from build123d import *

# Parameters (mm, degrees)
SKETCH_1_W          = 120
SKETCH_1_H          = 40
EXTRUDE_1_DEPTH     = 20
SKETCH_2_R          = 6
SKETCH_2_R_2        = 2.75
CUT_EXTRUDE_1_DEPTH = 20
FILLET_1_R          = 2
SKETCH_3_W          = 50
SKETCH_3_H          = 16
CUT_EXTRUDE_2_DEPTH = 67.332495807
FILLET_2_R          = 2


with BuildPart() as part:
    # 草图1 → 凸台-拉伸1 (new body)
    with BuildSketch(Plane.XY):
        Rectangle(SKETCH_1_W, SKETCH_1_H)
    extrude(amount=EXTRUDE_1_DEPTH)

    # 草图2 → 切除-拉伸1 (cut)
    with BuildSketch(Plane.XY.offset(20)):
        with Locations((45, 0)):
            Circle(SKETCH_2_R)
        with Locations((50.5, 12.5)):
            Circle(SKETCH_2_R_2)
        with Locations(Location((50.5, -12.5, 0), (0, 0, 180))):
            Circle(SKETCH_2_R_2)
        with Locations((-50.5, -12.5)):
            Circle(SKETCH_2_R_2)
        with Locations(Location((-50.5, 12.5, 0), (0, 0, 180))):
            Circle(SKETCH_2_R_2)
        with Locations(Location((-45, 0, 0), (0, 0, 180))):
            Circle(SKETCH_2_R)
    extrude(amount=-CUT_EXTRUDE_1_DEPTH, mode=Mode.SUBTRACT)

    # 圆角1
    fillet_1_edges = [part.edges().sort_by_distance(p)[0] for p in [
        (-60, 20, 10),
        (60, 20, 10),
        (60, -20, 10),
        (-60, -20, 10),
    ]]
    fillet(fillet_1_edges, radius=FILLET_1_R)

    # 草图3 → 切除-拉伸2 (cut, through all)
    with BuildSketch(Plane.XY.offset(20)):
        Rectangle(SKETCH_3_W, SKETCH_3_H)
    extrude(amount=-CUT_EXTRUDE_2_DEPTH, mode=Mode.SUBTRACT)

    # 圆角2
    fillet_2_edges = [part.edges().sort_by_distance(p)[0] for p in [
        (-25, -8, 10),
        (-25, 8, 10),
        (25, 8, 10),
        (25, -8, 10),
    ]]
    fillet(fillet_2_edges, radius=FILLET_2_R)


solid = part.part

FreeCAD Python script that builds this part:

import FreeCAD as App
import Part
import Sketcher

V = App.Vector
Q = App.Units.Quantity


def edges_at(feature, points):
    """Names of the edges that pass closest to the given points."""
    edges = feature.Shape.Edges
    near = lambda p: min(range(len(edges)), key=lambda i: edges[i].distToShape(Part.Vertex(*p))[0])
    return sorted({f"Edge{near(p) + 1}" for p in points})

doc = App.newDocument("Part")
body = doc.addObject("PartDesign::Body", "Body")

# Sketch on XY plane
sketch1 = body.newObject("Sketcher::SketchObject", "Sketch")
sketch1.AttachmentSupport = (doc.getObject("XY_Plane"), [""])
sketch1.MapMode = "FlatFace"
sketch1.addGeometry([
    Part.LineSegment(V(-60, 20, 0), V(-60, -20, 0)),
    Part.LineSegment(V(-60, -20, 0), V(60, -20, 0)),
    Part.LineSegment(V(60, -20, 0), V(60, 20, 0)),
    Part.LineSegment(V(60, 20, 0), V(-60, 20, 0)),
], False)
sketch1.addConstraint([
    Sketcher.Constraint("Coincident", 0, 2, 1, 1),
    Sketcher.Constraint("Coincident", 1, 2, 2, 1),
    Sketcher.Constraint("Coincident", 2, 2, 3, 1),
    Sketcher.Constraint("Coincident", 3, 2, 0, 1),
    Sketcher.Constraint("Vertical", 0),
    Sketcher.Constraint("Horizontal", 1),
    Sketcher.Constraint("Vertical", 2),
    Sketcher.Constraint("Horizontal", 3),
    Sketcher.Constraint("Symmetric", 0, 2, 2, 2, -1, 1),
    Sketcher.Constraint("DistanceX", 1, 1, 1, 2, Q("120 mm")),
    Sketcher.Constraint("DistanceY", 0, 2, 0, 1, Q("40 mm")),
])
pad1 = body.newObject("PartDesign::Pad", "Pad")
pad1.Profile = sketch1
pad1.Length = 20

# Sketch on XY plane
sketch2 = body.newObject("Sketcher::SketchObject", "Sketch001")
sketch2.AttachmentSupport = (doc.getObject("XY_Plane"), [""])
sketch2.MapMode = "FlatFace"
sketch2.AttachmentOffset = App.Placement(V(0, 0, 20), App.Rotation())
sketch2.addGeometry([
    Part.Circle(V(45, 0, 0), V(0, 0, 1), 6),  # 0
    Part.Circle(V(50.5, 12.5, 0), V(0, 0, 1), 2.75),  # 1
    Part.Circle(V(50.5, -12.5, 0), V(0, 0, 1), 2.75),  # 2
    Part.Circle(V(-50.5, -12.5, 0), V(0, 0, 1), 2.75),  # 3
    Part.Circle(V(-50.5, 12.5, 0), V(0, 0, 1), 2.75),  # 4
    Part.Circle(V(-45, 0, 0), V(0, 0, 1), 6),  # 5
], False)
sketch2.addConstraint([
    Sketcher.Constraint("Equal", 1, 2),
    Sketcher.Constraint("Equal", 2, 3),
    Sketcher.Constraint("Equal", 3, 4),
    Sketcher.Constraint("Equal", 0, 5),
    Sketcher.Constraint("Symmetric", 1, 3, 3, 3, -1, 1),
    Sketcher.Constraint("Symmetric", 2, 3, 4, 3, -1, 1),
    Sketcher.Constraint("Symmetric", 0, 3, 5, 3, -1, 1),
    Sketcher.Constraint("Symmetric", 2, 3, 3, 3, -2),
    Sketcher.Constraint("PointOnObject", 0, 3, -1),
    Sketcher.Constraint("Diameter", 0, Q("12 mm")),
    Sketcher.Constraint("Diameter", 1, Q("5.5 mm")),
    Sketcher.Constraint("DistanceX", -1, 1, 0, 3, Q("45 mm")),
    Sketcher.Constraint("DistanceY", 2, 3, 1, 3, Q("25 mm")),
    Sketcher.Constraint("DistanceX", 3, 3, 2, 3, Q("101 mm")),
])
pocket1 = body.newObject("PartDesign::Pocket", "Pocket")
pocket1.Profile = sketch2
pocket1.Length = 20
doc.recompute()

fillet = body.newObject("PartDesign::Fillet", "Fillet")
fillet.Base = (pocket1, edges_at(pocket1, [
    (-60, 20, 10),
    (60, 20, 10),
    (60, -20, 10),
    (-60, -20, 10),
]))
fillet.Radius = 2

# Sketch on XY plane
sketch3 = body.newObject("Sketcher::SketchObject", "Sketch002")
sketch3.AttachmentSupport = (doc.getObject("XY_Plane"), [""])
sketch3.MapMode = "FlatFace"
sketch3.AttachmentOffset = App.Placement(V(0, 0, 20), App.Rotation())
sketch3.addGeometry([
    Part.LineSegment(V(-25, 8, 0), V(-25, -8, 0)),
    Part.LineSegment(V(-25, -8, 0), V(25, -8, 0)),
    Part.LineSegment(V(25, -8, 0), V(25, 8, 0)),
    Part.LineSegment(V(25, 8, 0), V(-25, 8, 0)),
], False)
sketch3.addConstraint([
    Sketcher.Constraint("Coincident", 0, 2, 1, 1),
    Sketcher.Constraint("Coincident", 1, 2, 2, 1),
    Sketcher.Constraint("Coincident", 2, 2, 3, 1),
    Sketcher.Constraint("Coincident", 3, 2, 0, 1),
    Sketcher.Constraint("Vertical", 0),
    Sketcher.Constraint("Horizontal", 1),
    Sketcher.Constraint("Vertical", 2),
    Sketcher.Constraint("Horizontal", 3),
    Sketcher.Constraint("Symmetric", 0, 2, 2, 2, -1, 1),
    Sketcher.Constraint("DistanceX", 1, 1, 1, 2, Q("50 mm")),
    Sketcher.Constraint("DistanceY", 0, 2, 0, 1, Q("16 mm")),
])
pocket2 = body.newObject("PartDesign::Pocket", "Pocket001")
pocket2.Profile = sketch3
pocket2.Type = "ThroughAll"
doc.recompute()

fillet2 = body.newObject("PartDesign::Fillet", "Fillet001")
fillet2.Base = (pocket2, edges_at(pocket2, [
    (-25, -8, 10),
    (-25, 8, 10),
    (25, 8, 10),
    (25, -8, 10),
]))
fillet2.Radius = 2

doc.recompute()
